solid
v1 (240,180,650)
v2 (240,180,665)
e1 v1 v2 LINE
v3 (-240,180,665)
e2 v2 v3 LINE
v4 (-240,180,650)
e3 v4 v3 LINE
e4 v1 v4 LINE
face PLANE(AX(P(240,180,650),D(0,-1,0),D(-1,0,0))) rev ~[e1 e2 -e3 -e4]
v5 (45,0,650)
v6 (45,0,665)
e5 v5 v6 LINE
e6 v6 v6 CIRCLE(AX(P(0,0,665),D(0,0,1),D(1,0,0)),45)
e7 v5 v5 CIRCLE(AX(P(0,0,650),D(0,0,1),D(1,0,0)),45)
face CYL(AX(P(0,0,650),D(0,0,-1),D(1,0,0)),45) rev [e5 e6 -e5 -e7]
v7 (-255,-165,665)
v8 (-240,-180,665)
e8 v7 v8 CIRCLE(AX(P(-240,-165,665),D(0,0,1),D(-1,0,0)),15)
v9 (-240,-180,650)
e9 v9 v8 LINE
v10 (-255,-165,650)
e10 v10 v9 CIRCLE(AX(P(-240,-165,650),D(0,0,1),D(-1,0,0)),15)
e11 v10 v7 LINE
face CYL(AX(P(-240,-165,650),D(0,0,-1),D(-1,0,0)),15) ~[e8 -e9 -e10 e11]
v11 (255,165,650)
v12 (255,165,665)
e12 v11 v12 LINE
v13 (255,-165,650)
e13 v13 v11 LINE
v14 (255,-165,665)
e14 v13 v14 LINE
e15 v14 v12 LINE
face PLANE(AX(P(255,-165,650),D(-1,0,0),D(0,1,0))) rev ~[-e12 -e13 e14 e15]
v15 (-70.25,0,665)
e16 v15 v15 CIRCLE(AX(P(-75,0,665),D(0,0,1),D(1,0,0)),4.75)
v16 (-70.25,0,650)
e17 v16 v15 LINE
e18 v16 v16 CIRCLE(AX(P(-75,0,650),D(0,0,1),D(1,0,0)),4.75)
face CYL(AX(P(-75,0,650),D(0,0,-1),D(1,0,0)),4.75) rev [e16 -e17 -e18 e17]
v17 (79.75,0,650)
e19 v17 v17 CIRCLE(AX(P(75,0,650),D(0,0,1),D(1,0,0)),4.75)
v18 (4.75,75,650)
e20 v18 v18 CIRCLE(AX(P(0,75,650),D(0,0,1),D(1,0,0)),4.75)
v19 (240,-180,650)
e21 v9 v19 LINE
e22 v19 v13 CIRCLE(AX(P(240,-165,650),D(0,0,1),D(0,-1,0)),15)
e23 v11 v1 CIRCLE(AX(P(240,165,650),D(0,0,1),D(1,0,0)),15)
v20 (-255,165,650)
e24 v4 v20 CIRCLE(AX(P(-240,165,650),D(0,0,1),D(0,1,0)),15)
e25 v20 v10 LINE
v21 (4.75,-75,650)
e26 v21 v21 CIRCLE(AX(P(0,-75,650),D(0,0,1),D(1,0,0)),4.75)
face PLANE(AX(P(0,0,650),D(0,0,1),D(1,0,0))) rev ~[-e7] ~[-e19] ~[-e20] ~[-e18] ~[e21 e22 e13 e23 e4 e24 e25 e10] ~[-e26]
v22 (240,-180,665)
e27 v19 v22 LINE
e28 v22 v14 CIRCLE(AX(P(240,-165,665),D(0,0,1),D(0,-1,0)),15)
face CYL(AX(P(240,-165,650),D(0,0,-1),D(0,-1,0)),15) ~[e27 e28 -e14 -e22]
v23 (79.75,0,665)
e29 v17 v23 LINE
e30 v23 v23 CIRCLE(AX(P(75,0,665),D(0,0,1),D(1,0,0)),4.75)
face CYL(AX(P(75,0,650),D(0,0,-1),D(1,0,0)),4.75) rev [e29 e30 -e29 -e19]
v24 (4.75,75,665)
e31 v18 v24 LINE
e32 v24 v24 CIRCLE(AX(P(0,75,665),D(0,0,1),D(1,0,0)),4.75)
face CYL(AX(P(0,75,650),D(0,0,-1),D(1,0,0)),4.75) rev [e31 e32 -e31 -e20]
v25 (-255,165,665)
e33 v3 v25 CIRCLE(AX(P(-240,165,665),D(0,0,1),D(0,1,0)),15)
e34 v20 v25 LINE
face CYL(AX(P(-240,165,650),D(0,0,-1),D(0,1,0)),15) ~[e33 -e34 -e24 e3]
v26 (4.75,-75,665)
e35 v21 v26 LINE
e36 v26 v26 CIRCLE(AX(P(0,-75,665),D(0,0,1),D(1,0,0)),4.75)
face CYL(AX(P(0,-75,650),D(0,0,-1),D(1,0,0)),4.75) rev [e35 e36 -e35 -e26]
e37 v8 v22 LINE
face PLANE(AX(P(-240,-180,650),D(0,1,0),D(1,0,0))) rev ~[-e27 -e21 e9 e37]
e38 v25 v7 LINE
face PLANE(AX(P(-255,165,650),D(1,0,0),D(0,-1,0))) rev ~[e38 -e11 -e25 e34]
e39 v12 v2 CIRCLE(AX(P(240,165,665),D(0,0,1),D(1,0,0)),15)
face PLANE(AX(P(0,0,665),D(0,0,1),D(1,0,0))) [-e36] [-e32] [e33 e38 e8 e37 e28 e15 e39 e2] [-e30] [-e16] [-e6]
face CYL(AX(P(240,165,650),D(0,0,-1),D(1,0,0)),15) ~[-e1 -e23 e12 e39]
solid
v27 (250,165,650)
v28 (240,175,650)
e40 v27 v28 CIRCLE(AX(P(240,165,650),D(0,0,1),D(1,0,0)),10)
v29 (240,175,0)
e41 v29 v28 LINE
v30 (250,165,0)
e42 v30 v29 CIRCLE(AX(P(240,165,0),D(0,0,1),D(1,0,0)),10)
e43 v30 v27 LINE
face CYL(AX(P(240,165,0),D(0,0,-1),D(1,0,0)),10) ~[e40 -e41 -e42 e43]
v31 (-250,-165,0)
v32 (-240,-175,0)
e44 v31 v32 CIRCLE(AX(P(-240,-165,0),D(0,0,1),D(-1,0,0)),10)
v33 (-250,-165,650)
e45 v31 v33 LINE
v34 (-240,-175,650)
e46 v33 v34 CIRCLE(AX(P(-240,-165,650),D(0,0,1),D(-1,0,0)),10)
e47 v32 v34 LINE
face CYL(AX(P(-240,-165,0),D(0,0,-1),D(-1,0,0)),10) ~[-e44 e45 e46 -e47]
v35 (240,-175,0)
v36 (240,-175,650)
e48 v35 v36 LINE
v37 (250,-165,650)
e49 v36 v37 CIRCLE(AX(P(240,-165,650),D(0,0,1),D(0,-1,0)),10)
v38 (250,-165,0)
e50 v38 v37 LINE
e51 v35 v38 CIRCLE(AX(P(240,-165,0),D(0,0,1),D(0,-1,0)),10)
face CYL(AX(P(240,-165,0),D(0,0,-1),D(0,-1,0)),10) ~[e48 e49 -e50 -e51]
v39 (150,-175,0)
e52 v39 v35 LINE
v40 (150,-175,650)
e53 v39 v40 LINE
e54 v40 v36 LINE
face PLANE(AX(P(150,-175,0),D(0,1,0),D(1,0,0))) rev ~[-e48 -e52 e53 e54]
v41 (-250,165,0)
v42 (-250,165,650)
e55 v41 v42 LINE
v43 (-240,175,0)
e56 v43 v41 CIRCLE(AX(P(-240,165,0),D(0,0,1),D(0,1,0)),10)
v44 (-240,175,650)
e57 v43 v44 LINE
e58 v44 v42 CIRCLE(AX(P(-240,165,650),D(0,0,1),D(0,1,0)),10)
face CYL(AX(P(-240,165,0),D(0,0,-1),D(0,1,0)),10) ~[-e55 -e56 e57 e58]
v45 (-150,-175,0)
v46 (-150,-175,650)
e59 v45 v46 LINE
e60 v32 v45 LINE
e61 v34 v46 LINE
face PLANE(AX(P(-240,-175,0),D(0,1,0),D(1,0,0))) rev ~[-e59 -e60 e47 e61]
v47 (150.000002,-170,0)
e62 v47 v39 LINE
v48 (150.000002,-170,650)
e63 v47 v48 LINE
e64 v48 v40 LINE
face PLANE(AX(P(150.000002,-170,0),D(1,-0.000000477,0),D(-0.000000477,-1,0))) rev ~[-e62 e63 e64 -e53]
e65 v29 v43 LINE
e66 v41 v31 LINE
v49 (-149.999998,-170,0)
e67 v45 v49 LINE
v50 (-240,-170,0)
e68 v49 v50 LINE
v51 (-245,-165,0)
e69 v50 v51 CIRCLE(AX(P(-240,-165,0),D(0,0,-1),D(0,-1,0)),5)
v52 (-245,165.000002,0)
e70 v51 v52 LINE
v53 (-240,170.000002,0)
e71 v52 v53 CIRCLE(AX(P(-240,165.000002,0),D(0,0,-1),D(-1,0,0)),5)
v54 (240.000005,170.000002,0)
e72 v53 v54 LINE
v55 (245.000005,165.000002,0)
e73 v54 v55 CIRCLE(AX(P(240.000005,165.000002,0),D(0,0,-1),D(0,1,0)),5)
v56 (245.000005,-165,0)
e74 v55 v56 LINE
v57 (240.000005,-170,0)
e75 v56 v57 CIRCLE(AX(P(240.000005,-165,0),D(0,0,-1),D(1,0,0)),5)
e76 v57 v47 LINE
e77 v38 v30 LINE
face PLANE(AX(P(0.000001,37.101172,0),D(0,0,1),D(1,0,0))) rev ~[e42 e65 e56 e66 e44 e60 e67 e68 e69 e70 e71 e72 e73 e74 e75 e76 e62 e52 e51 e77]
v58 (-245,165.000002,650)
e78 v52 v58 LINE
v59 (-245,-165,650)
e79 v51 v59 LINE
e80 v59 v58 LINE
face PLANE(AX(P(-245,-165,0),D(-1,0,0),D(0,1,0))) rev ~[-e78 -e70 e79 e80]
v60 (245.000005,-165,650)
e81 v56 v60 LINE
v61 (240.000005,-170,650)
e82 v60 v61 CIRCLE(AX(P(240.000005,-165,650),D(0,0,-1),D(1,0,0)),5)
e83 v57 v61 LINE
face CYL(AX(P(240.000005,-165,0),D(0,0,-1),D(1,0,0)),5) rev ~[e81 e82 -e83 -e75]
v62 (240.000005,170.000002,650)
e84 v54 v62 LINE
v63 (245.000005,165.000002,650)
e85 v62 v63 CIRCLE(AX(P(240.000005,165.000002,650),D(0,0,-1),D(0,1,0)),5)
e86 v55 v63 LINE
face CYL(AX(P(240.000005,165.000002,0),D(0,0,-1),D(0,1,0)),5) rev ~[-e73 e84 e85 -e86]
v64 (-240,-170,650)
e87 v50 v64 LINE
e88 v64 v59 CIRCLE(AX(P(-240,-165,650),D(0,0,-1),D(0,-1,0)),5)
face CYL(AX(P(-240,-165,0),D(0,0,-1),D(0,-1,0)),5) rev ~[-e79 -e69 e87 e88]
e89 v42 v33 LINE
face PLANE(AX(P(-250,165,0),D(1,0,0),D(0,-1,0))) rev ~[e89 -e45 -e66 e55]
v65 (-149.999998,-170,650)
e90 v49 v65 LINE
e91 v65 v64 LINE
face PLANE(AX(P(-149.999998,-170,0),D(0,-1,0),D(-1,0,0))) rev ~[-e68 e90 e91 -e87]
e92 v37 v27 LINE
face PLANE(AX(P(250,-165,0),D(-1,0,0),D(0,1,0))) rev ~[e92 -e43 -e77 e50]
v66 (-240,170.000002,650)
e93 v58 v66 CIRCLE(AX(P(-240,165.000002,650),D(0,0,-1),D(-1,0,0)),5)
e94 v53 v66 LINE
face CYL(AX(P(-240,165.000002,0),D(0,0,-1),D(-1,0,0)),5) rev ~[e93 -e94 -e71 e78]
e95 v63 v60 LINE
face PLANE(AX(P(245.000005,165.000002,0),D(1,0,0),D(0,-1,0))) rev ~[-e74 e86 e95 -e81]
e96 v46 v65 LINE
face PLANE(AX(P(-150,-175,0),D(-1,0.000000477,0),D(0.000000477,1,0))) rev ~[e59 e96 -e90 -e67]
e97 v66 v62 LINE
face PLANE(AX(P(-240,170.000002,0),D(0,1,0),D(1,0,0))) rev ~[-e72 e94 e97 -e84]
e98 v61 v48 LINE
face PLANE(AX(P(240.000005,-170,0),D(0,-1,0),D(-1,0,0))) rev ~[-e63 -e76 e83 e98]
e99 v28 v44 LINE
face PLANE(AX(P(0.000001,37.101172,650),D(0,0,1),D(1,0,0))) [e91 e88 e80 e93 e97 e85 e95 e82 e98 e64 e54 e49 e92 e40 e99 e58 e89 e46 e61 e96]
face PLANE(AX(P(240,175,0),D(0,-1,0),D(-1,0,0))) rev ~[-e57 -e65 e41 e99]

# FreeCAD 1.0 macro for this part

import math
import FreeCAD as App
import Part
import Sketcher

doc = App.newDocument("Part")
body = doc.addObject("PartDesign::Body", "Body")

# Sketch on XY plane
sketch1 = doc.addObject("Sketcher::SketchObject", "Sketch")
body.addObject(sketch1)
sketch1.AttachmentSupport = (doc.XY_Plane, [""])
sketch1.MapMode = "FlatFace"
sketch1.addGeometry([
    Part.LineSegment(App.Vector(150, -175, 0), App.Vector(240, -175, 0)),  # 0
    Part.ArcOfCircle(Part.Circle(App.Vector(240, -165, 0), App.Vector(0, 0, 1), 10), math.radians(-90), math.radians(0)),  # 1
    Part.LineSegment(App.Vector(250, -165, 0), App.Vector(250, 165, 0)),  # 2
    Part.ArcOfCircle(Part.Circle(App.Vector(240, 165, 0), App.Vector(0, 0, 1), 10), math.radians(0), math.radians(90)),  # 3
    Part.LineSegment(App.Vector(240, 175, 0), App.Vector(-240, 175, 0)),  # 4
    Part.ArcOfCircle(Part.Circle(App.Vector(-240, 165, 0), App.Vector(0, 0, 1), 10), math.radians(90), math.radians(180)),  # 5
    Part.LineSegment(App.Vector(-250, 165, 0), App.Vector(-250, -165, 0)),  # 6
    Part.ArcOfCircle(Part.Circle(App.Vector(-240, -165, 0), App.Vector(0, 0, 1), 10), math.radians(180), math.radians(270)),  # 7
    Part.LineSegment(App.Vector(-240, -175, 0), App.Vector(-150, -175, 0)),  # 8
    Part.LineSegment(App.Vector(-150, -175, 0), App.Vector(-150, -170, 0)),  # 9
    Part.LineSegment(App.Vector(-150, -170, 0), App.Vector(-240, -170, 0)),  # 10
    Part.ArcOfCircle(Part.Circle(App.Vector(-240, -165, 0), App.Vector(0, 0, 1), 5), math.radians(180), math.radians(270)),  # 11
    Part.LineSegment(App.Vector(-245, -165, 0), App.Vector(-245, 165, 0)),  # 12
    Part.ArcOfCircle(Part.Circle(App.Vector(-240, 165, 0), App.Vector(0, 0, 1), 5), math.radians(90), math.radians(180)),  # 13
    Part.LineSegment(App.Vector(-240, 170, 0), App.Vector(240, 170, 0)),  # 14
    Part.ArcOfCircle(Part.Circle(App.Vector(240, 165, 0), App.Vector(0, 0, 1), 5), math.radians(0), math.radians(90)),  # 15
    Part.LineSegment(App.Vector(245, 165, 0), App.Vector(245, -165, 0)),  # 16
    Part.ArcOfCircle(Part.Circle(App.Vector(240, -165, 0), App.Vector(0, 0, 1), 5), math.radians(-90), math.radians(0)),  # 17
    Part.LineSegment(App.Vector(240, -170, 0), App.Vector(150, -170, 0)),  # 18
    Part.LineSegment(App.Vector(150, -170, 0), App.Vector(150, -175, 0)),  # 19
], False)
sketch1.addConstraint([
    Sketcher.Constraint("Tangent", 0, 2, 1, 1),
    Sketcher.Constraint("Tangent", 1, 2, 2, 1),
    Sketcher.Constraint("Tangent", 2, 2, 3, 1),
    Sketcher.Constraint("Tangent", 3, 2, 4, 1),
    Sketcher.Constraint("Tangent", 4, 2, 5, 1),
    Sketcher.Constraint("Tangent", 5, 2, 6, 1),
    Sketcher.Constraint("Tangent", 6, 2, 7, 1),
    Sketcher.Constraint("Tangent", 7, 2, 8, 1),
    Sketcher.Constraint("Coincident", 8, 2, 9, 1),
    Sketcher.Constraint("Coincident", 9, 2, 10, 1),
    Sketcher.Constraint("Tangent", 10, 2, 11, 2),
    Sketcher.Constraint("Tangent", 11, 1, 12, 1),
    Sketcher.Constraint("Tangent", 12, 2, 13, 2),
    Sketcher.Constraint("Tangent", 13, 1, 14, 1),
    Sketcher.Constraint("Tangent", 14, 2, 15, 2),
    Sketcher.Constraint("Tangent", 15, 1, 16, 1),
    Sketcher.Constraint("Tangent", 16, 2, 17, 2),
    Sketcher.Constraint("Tangent", 17, 1, 18, 1),
    Sketcher.Constraint("Coincident", 18, 2, 19, 1),
    Sketcher.Constraint("Coincident", 19, 2, 0, 1),
    Sketcher.Constraint("Horizontal", 0),
    Sketcher.Constraint("Vertical", 2),
    Sketcher.Constraint("Horizontal", 4),
    Sketcher.Constraint("Vertical", 6),
    Sketcher.Constraint("Horizontal", 8),
    Sketcher.Constraint("Horizontal", 10),
    Sketcher.Constraint("Vertical", 12),
    Sketcher.Constraint("Horizontal", 14),
    Sketcher.Constraint("Vertical", 16),
    Sketcher.Constraint("Horizontal", 18),
    Sketcher.Constraint("Coincident", 11, 3, 7, 3),
    Sketcher.Constraint("Coincident", 13, 3, 5, 3),
    Sketcher.Constraint("Coincident", 15, 3, 3, 3),
    Sketcher.Constraint("Coincident", 17, 3, 1, 3),
    Sketcher.Constraint("Equal", 1, 3),
    Sketcher.Constraint("Equal", 3, 5),
    Sketcher.Constraint("Equal", 5, 7),
    Sketcher.Constraint("Symmetric", 1, 3, 5, 3, -1, 1),
    Sketcher.Constraint("Symmetric", 9, 2, 18, 2, -2),
    Sketcher.Constraint("Parallel", 9, 19),
    Sketcher.Constraint("Equal", 0, 8),
    Sketcher.Constraint("Radius", 1, 10.0),
    Sketcher.Constraint("Radius", 11, 5.0),
    Sketcher.Constraint("DistanceX", 0, 1, 0, 2, 90.0),
    Sketcher.Constraint("DistanceX", 4, 2, 4, 1, 480.0),
    Sketcher.Constraint("DistanceY", 2, 1, 2, 2, 330.0),
])
pad1 = doc.addObject("PartDesign::Pad", "Pad")
body.addObject(pad1)
pad1.Profile = sketch1
pad1.Length = 650
body2 = doc.addObject("PartDesign::Body", "Body001")

# Sketch on XY plane
sketch2 = doc.addObject("Sketcher::SketchObject", "Sketch001")
body2.addObject(sketch2)
sketch2.AttachmentSupport = (doc.getObject("XY_Plane001"), [""])
sketch2.MapMode = "FlatFace"
sketch2.AttachmentOffset = App.Placement(App.Vector(0, 0, 650), App.Rotation())
sketch2.addGeometry([
    Part.LineSegment(App.Vector(240, 180, 0), App.Vector(-240, 180, 0)),  # 0
    Part.ArcOfCircle(Part.Circle(App.Vector(-240, 165, 0), App.Vector(0, 0, 1), 15), math.radians(90), math.radians(180)),  # 1
    Part.LineSegment(App.Vector(-255, 165, 0), App.Vector(-255, -165, 0)),  # 2
    Part.ArcOfCircle(Part.Circle(App.Vector(-240, -165, 0), App.Vector(0, 0, 1), 15), math.radians(180), math.radians(270)),  # 3
    Part.LineSegment(App.Vector(-240, -180, 0), App.Vector(240, -180, 0)),  # 4
    Part.ArcOfCircle(Part.Circle(App.Vector(240, -165, 0), App.Vector(0, 0, 1), 15), math.radians(-90), math.radians(0)),  # 5
    Part.LineSegment(App.Vector(255, -165, 0), App.Vector(255, 165, 0)),  # 6
    Part.ArcOfCircle(Part.Circle(App.Vector(240, 165, 0), App.Vector(0, 0, 1), 15), math.radians(0), math.radians(90)),  # 7
    Part.Circle(App.Vector(0, -75, 0), App.Vector(0, 0, 1), 4.8),  # 8
    Part.Circle(App.Vector(-75, 0, 0), App.Vector(0, 0, 1), 4.8),  # 9
    Part.Circle(App.Vector(0, 0, 0), App.Vector(0, 0, 1), 45),  # 10
    Part.Circle(App.Vector(75, 0, 0), App.Vector(0, 0, 1), 4.8),  # 11
    Part.Circle(App.Vector(0, 75, 0), App.Vector(0, 0, 1), 4.8),  # 12
], False)
sketch2.addConstraint([
    Sketcher.Constraint("Tangent", 0, 2, 1, 1),
    Sketcher.Constraint("Tangent", 1, 2, 2, 1),
    Sketcher.Constraint("Tangent", 2, 2, 3, 1),
    Sketcher.Constraint("Tangent", 3, 2, 4, 1),
    Sketcher.Constraint("Tangent", 4, 2, 5, 1),
    Sketcher.Constraint("Tangent", 5, 2, 6, 1),
    Sketcher.Constraint("Tangent", 6, 2, 7, 1),
    Sketcher.Constraint("Tangent", 7, 2, 0, 1),
    Sketcher.Constraint("Horizontal", 0),
    Sketcher.Constraint("Vertical", 2),
    Sketcher.Constraint("Horizontal", 4),
    Sketcher.Constraint("Vertical", 6),
    Sketcher.Constraint("Coincident", 10, 3, -1, 1),
    Sketcher.Constraint("Equal", 1, 3),
    Sketcher.Constraint("Equal", 3, 5),
    Sketcher.Constraint("Equal", 5, 7),
    Sketcher.Constraint("Equal", 8, 9),
    Sketcher.Constraint("Equal", 9, 11),
    Sketcher.Constraint("Equal", 11, 12),
    Sketcher.Constraint("Symmetric", 1, 3, 5, 3, -1, 1),
    Sketcher.Constraint("Symmetric", 9, 3, 11, 3, -1, 1),
    Sketcher.Constraint("Symmetric", 8, 3, 12, 3, -1, 1),
    Sketcher.Constraint("PointOnObject", 8, 3, -2),
    Sketcher.Constraint("PointOnObject", 9, 3, -1),
    Sketcher.Constraint("Diameter", 10, 90.0),
    Sketcher.Constraint("Radius", 1, 15.0),
    Sketcher.Constraint("Diameter", 8, 9.5),
    Sketcher.Constraint("DistanceX", 0, 2, 0, 1, 480.0),
    Sketcher.Constraint("DistanceY", 2, 2, 2, 1, 330.0),
    Sketcher.Constraint("DistanceY", 8, 3, -1, 1, 75.0),
    Sketcher.Constraint("DistanceX", 9, 3, -1, 1, 75.0),
])
pad2 = doc.addObject("PartDesign::Pad", "Pad001")
body2.addObject(pad2)
pad2.Profile = sketch2
pad2.Length = 15

doc.recompute()
